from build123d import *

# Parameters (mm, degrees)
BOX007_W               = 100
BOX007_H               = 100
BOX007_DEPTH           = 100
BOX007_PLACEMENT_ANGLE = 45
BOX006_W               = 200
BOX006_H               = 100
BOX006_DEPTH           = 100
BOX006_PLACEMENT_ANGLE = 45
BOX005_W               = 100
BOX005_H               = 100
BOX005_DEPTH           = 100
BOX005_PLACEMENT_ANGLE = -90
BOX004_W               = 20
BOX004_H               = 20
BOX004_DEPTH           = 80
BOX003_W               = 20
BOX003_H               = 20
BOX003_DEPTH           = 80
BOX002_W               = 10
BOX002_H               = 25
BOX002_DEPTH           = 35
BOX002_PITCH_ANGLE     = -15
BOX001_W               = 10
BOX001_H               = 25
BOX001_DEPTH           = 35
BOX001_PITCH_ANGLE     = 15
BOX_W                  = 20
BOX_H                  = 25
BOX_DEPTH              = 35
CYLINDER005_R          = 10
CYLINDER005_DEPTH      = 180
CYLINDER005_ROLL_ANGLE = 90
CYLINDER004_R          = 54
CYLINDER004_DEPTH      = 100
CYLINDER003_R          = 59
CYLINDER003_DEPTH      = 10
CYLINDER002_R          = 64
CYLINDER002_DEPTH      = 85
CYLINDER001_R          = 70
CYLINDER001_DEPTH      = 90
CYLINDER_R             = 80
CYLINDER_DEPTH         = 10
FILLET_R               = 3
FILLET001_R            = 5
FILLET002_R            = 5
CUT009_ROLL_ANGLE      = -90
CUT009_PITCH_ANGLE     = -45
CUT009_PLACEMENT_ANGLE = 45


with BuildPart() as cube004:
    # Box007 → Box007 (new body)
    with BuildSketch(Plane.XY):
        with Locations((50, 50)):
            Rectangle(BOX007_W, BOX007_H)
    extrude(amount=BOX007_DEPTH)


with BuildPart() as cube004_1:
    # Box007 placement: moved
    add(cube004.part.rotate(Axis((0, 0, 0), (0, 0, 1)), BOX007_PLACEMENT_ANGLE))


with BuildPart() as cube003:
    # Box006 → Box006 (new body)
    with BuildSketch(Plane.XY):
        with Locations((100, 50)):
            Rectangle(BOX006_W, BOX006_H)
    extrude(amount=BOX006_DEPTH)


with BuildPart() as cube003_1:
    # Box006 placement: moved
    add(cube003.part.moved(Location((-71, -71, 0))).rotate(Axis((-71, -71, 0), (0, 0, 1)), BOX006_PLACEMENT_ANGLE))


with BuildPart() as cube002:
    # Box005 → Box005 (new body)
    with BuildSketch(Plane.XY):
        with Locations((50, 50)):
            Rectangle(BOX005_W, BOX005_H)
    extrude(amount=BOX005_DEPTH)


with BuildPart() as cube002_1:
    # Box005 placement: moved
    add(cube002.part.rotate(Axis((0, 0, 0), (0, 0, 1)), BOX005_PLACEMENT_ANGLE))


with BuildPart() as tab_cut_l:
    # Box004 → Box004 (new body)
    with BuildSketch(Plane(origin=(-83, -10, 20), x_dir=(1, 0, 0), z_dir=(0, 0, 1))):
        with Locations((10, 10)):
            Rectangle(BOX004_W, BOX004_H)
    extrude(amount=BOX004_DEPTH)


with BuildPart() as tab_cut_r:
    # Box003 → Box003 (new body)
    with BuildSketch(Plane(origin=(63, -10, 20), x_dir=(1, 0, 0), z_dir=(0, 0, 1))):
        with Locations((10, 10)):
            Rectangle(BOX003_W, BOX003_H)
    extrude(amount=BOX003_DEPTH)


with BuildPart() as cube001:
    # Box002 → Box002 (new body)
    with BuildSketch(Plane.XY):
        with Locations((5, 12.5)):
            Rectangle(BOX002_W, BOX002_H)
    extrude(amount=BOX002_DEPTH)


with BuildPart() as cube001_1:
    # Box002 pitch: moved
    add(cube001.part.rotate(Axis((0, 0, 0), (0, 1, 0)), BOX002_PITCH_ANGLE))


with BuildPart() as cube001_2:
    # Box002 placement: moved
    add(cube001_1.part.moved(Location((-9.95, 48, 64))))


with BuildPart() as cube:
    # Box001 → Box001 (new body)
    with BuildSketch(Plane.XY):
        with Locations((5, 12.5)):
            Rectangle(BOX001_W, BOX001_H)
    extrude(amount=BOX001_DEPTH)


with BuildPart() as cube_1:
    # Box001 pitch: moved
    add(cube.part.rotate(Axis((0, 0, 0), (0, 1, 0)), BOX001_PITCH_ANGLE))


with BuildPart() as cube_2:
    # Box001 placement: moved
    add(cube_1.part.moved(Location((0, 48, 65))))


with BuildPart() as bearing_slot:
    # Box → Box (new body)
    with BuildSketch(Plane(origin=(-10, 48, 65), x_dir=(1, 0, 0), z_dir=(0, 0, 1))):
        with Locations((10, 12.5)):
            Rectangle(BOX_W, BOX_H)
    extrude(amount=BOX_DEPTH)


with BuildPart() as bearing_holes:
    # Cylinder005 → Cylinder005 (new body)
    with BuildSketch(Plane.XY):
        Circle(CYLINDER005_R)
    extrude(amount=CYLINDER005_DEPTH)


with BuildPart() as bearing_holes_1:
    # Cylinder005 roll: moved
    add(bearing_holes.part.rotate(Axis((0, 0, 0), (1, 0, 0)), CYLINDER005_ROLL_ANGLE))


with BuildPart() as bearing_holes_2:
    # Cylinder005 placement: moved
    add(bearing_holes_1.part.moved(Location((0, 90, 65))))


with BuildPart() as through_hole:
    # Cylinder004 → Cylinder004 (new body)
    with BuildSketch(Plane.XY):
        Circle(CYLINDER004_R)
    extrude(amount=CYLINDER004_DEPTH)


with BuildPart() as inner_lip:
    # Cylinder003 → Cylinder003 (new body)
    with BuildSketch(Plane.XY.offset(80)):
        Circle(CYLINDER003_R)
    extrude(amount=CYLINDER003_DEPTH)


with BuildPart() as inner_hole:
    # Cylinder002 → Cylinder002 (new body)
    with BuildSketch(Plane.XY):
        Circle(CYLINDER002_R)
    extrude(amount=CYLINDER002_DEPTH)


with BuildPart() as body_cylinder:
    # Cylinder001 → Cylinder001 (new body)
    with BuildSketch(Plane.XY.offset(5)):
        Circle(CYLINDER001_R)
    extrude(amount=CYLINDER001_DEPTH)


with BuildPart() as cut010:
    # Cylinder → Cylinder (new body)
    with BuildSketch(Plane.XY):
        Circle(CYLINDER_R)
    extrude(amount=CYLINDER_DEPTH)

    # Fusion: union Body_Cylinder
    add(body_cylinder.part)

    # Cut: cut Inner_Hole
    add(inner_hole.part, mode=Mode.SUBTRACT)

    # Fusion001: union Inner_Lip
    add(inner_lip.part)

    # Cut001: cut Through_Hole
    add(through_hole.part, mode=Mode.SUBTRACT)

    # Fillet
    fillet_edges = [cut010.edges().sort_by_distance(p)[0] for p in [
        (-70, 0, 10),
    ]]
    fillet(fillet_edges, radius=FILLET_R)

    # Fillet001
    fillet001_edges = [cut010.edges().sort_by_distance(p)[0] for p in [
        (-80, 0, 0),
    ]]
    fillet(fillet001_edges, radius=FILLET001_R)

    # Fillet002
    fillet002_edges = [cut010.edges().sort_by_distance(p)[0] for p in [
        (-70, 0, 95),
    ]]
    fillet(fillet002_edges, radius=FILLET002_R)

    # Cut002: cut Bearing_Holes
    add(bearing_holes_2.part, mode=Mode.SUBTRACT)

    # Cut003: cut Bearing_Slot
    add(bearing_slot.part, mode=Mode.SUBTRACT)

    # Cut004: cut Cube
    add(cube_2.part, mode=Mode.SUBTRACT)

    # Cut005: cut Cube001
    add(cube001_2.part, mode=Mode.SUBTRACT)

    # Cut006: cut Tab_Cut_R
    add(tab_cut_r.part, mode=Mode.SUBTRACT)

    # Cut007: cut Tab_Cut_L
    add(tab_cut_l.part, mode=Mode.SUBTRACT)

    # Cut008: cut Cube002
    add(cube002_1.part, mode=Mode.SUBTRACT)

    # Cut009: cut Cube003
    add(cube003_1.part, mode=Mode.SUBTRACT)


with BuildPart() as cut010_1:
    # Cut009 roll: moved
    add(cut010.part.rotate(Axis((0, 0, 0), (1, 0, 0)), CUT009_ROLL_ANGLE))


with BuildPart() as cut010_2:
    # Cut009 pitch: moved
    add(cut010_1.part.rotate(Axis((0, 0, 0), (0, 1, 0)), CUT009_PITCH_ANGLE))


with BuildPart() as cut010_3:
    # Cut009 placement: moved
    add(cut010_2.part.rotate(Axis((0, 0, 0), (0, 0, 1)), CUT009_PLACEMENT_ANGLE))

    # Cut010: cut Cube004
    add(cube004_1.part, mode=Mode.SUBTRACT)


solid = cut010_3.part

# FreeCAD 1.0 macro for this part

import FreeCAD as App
import Part
import Sketcher
Q = App.Units.Quantity


def edges_at(feature, points):
    """Names of the edges that pass closest to the given points."""
    edges = feature.Shape.Edges
    near = lambda p: min(range(len(edges)), key=lambda i: edges[i].distToShape(Part.Vertex(*p))[0])
    return sorted({f"Edge{near(p) + 1}" for p in points})


def add_polygon(sketch, points):
    """Adds a closed chain of lines whose ends are joined by coincident constraints."""
    first, n = sketch.GeometryCount, len(points)
    for a, b in zip(points, points[1:] + points[:1]):
        sketch.addGeometry(Part.LineSegment(App.Vector(*a, 0), App.Vector(*b, 0)), False)
    for i in range(n):
        sketch.addConstraint(Sketcher.Constraint("Coincident", first + i, 2, first + (i + 1) % n, 1))

doc = App.newDocument("Part")
params = doc.addObject("Spreadsheet::Sheet", "Params")
for row, (alias, value) in enumerate([
    ("sketch1_width", "100 mm"),
    ("pad1_length", "100 mm"),
    ("sketch2_width", "200 mm"),
    ("sketch2_height", "100 mm"),
    ("pad2_length", "100 mm"),
    ("sketch3_width", "100 mm"),
    ("pad3_length", "100 mm"),
    ("sketch4_width", "20 mm"),
    ("pad4_length", "80 mm"),
    ("sketch5_width", "20 mm"),
    ("pad5_length", "80 mm"),
    ("sketch6_width", "10 mm"),
    ("sketch6_height", "25 mm"),
    ("pad6_length", "35 mm"),
    ("sketch7_width", "10 mm"),
    ("sketch7_height", "25 mm"),
    ("pad7_length", "35 mm"),
    ("sketch8_width", "20 mm"),
    ("sketch8_height", "25 mm"),
    ("pad8_length", "35 mm"),
    ("sketch9_diameter", "20 mm"),
    ("pad9_length", "180 mm"),
    ("sketch10_diameter", "108 mm"),
    ("pad10_length", "100 mm"),
    ("sketch11_diameter", "118 mm"),
    ("pad11_length", "10 mm"),
    ("sketch12_diameter", "128 mm"),
    ("pad12_length", "85 mm"),
    ("sketch13_diameter", "140 mm"),
    ("pad13_length", "90 mm"),
    ("sketch14_diameter", "160 mm"),
    ("pad14_length", "10 mm"),
    ("fillet_radius", "3 mm"),
    ("fillet2_radius", "5 mm"),
    ("fillet3_radius", "5 mm"),
], start=1):
    params.set(f"A{row}", alias)
    params.set(f"B{row}", "=" + value)
    params.setAlias(f"B{row}", alias)

body = doc.addObject("PartDesign::Body", "Body")

# Sketch on XY plane
sketch1 = body.newObject("Sketcher::SketchObject", "Sketch")
sketch1.AttachmentSupport = (doc.getObject("XY_Plane"), [""])
sketch1.MapMode = "FlatFace"
add_polygon(sketch1, [(0, 100), (0, 0), (100, 0), (100, 100)])  # lines 0-3
sketch1.addConstraint([
    Sketcher.Constraint("Vertical", 0),
    Sketcher.Constraint("Horizontal", 1),
    Sketcher.Constraint("Vertical", 2),
    Sketcher.Constraint("Horizontal", 3),
    Sketcher.Constraint("Coincident", 0, 2, -1, 1),
    Sketcher.Constraint("Equal", 3, 0),
    Sketcher.Constraint("DistanceX", 1, 1, 1, 2, Q("100 mm")),
])
sketch1.setExpression("Constraints[10]", "Params.sketch1_width")
pad1 = body.newObject("PartDesign::Pad", "Pad")
pad1.Profile = sketch1
pad1.setExpression("Length", "Params.pad1_length")
body2 = doc.addObject("PartDesign::Body", "Body001")
doc.recompute()

body.Placement = App.Placement(App.Vector(0, 0, 0), App.Rotation(App.Vector(0, 0, 1), 45))
boolean = body2.newObject("PartDesign::Boolean", "Boolean")
boolean.Type = "Fuse"
boolean.addObjects([body])
body3 = doc.addObject("PartDesign::Body", "Body002")

# Sketch on XY plane
sketch2 = body3.newObject("Sketcher::SketchObject", "Sketch001")
sketch2.AttachmentSupport = (doc.getObject("XY_Plane002"), [""])
sketch2.MapMode = "FlatFace"
add_polygon(sketch2, [(0, 100), (0, 0), (200, 0), (200, 100)])  # lines 0-3
sketch2.addConstraint([
    Sketcher.Constraint("Vertical", 0),
    Sketcher.Constraint("Horizontal", 1),
    Sketcher.Constraint("Vertical", 2),
    Sketcher.Constraint("Horizontal", 3),
    Sketcher.Constraint("Coincident", 0, 2, -1, 1),
    Sketcher.Constraint("DistanceX", 1, 1, 1, 2, Q("200 mm")),
    Sketcher.Constraint("DistanceY", 0, 2, 0, 1, Q("100 mm")),
])
sketch2.setExpression("Constraints[9]", "Params.sketch2_width")
sketch2.setExpression("Constraints[10]", "Params.sketch2_height")
pad2 = body3.newObject("PartDesign::Pad", "Pad001")
pad2.Profile = sketch2
pad2.setExpression("Length", "Params.pad2_length")
body4 = doc.addObject("PartDesign::Body", "Body003")
doc.recompute()

body3.Placement = App.Placement(App.Vector(-71, -71, 0), App.Rotation(App.Vector(0, 0, 1), 45))
boolean2 = body4.newObject("PartDesign::Boolean", "Boolean001")
boolean2.Type = "Fuse"
boolean2.addObjects([body3])
body5 = doc.addObject("PartDesign::Body", "Body004")

# Sketch on XY plane
sketch3 = body5.newObject("Sketcher::SketchObject", "Sketch002")
sketch3.AttachmentSupport = (doc.getObject("XY_Plane004"), [""])
sketch3.MapMode = "FlatFace"
add_polygon(sketch3, [(0, 100), (0, 0), (100, 0), (100, 100)])  # lines 0-3
sketch3.addConstraint([
    Sketcher.Constraint("Vertical", 0),
    Sketcher.Constraint("Horizontal", 1),
    Sketcher.Constraint("Vertical", 2),
    Sketcher.Constraint("Horizontal", 3),
    Sketcher.Constraint("Coincident", 0, 2, -1, 1),
    Sketcher.Constraint("Equal", 3, 0),
    Sketcher.Constraint("DistanceX", 1, 1, 1, 2, Q("100 mm")),
])
sketch3.setExpression("Constraints[10]", "Params.sketch3_width")
pad3 = body5.newObject("PartDesign::Pad", "Pad002")
pad3.Profile = sketch3
pad3.setExpression("Length", "Params.pad3_length")
body6 = doc.addObject("PartDesign::Body", "Body005")
doc.recompute()

body5.Placement = App.Placement(App.Vector(0, 0, 0), App.Rotation(App.Vector(0, 0, 1), 270))
boolean3 = body6.newObject("PartDesign::Boolean", "Boolean002")
boolean3.Type = "Fuse"
boolean3.addObjects([body5])
body7 = doc.addObject("PartDesign::Body", "Body006")

# Sketch on XY plane
sketch4 = body7.newObject("Sketcher::SketchObject", "Sketch003")
sketch4.AttachmentSupport = (doc.getObject("XY_Plane006"), [""])
sketch4.MapMode = "FlatFace"
sketch4.AttachmentOffset = App.Placement(App.Vector(0, 0, 20), App.Rotation())
add_polygon(sketch4, [(-83, 10), (-83, -10), (-63, -10), (-63, 10)])  # lines 0-3
sketch4.addConstraint([
    Sketcher.Constraint("Vertical", 0),
    Sketcher.Constraint("Horizontal", 1),
    Sketcher.Constraint("Vertical", 2),
    Sketcher.Constraint("Horizontal", 3),
    Sketcher.Constraint("Equal", 3, 0),
    Sketcher.Constraint("DistanceX", 1, 1, 1, 2, Q("20 mm")),
    Sketcher.Constraint("DistanceX", 0, 2, -1, 1, Q("83 mm")),
    Sketcher.Constraint("DistanceY", 0, 2, -1, 1, Q("10 mm")),
])
sketch4.setExpression("Constraints[9]", "Params.sketch4_width")
pad4 = body7.newObject("PartDesign::Pad", "Pad003")
pad4.Profile = sketch4
pad4.setExpression("Length", "Params.pad4_length")
body8 = doc.addObject("PartDesign::Body", "Body007")

# Sketch on XY plane
sketch5 = body8.newObject("Sketcher::SketchObject", "Sketch004")
sketch5.AttachmentSupport = (doc.getObject("XY_Plane007"), [""])
sketch5.MapMode = "FlatFace"
sketch5.AttachmentOffset = App.Placement(App.Vector(0, 0, 20), App.Rotation())
add_polygon(sketch5, [(63, 10), (63, -10), (83, -10), (83, 10)])  # lines 0-3
sketch5.addConstraint([
    Sketcher.Constraint("Vertical", 0),
    Sketcher.Constraint("Horizontal", 1),
    Sketcher.Constraint("Vertical", 2),
    Sketcher.Constraint("Horizontal", 3),
    Sketcher.Constraint("Equal", 3, 0),
    Sketcher.Constraint("DistanceX", 1, 1, 1, 2, Q("20 mm")),
    Sketcher.Constraint("DistanceX", -1, 1, 0, 2, Q("63 mm")),
    Sketcher.Constraint("DistanceY", 0, 2, -1, 1, Q("10 mm")),
])
sketch5.setExpression("Constraints[9]", "Params.sketch5_width")
pad5 = body8.newObject("PartDesign::Pad", "Pad004")
pad5.Profile = sketch5
pad5.setExpression("Length", "Params.pad5_length")
body9 = doc.addObject("PartDesign::Body", "Body008")

# Sketch on XY plane
sketch6 = body9.newObject("Sketcher::SketchObject", "Sketch005")
sketch6.AttachmentSupport = (doc.getObject("XY_Plane008"), [""])
sketch6.MapMode = "FlatFace"
add_polygon(sketch6, [(0, 25), (0, 0), (10, 0), (10, 25)])  # lines 0-3
sketch6.addConstraint([
    Sketcher.Constraint("Vertical", 0),
    Sketcher.Constraint("Horizontal", 1),
    Sketcher.Constraint("Vertical", 2),
    Sketcher.Constraint("Horizontal", 3),
    Sketcher.Constraint("Coincident", 0, 2, -1, 1),
    Sketcher.Constraint("DistanceX", 1, 1, 1, 2, Q("10 mm")),
    Sketcher.Constraint("DistanceY", 0, 2, 0, 1, Q("25 mm")),
])
sketch6.setExpression("Constraints[9]", "Params.sketch6_width")
sketch6.setExpression("Constraints[10]", "Params.sketch6_height")
pad6 = body9.newObject("PartDesign::Pad", "Pad005")
pad6.Profile = sketch6
pad6.setExpression("Length", "Params.pad6_length")
body10 = doc.addObject("PartDesign::Body", "Body009")
doc.recompute()

body9.Placement = App.Placement(App.Vector(0, 0, 0), App.Rotation(App.Vector(0, 1, 0), 345))
boolean4 = body10.newObject("PartDesign::Boolean", "Boolean003")
boolean4.Type = "Fuse"
boolean4.addObjects([body9])
body11 = doc.addObject("PartDesign::Body", "Body010")
doc.recompute()

body10.Placement = App.Placement(App.Vector(-9.95, 48, 64), App.Rotation(App.Vector(0, 0, 1), 0))
boolean5 = body11.newObject("PartDesign::Boolean", "Boolean004")
boolean5.Type = "Fuse"
boolean5.addObjects([body10])
body12 = doc.addObject("PartDesign::Body", "Body011")

# Sketch on XY plane
sketch7 = body12.newObject("Sketcher::SketchObject", "Sketch006")
sketch7.AttachmentSupport = (doc.getObject("XY_Plane011"), [""])
sketch7.MapMode = "FlatFace"
add_polygon(sketch7, [(0, 25), (0, 0), (10, 0), (10, 25)])  # lines 0-3
sketch7.addConstraint([
    Sketcher.Constraint("Vertical", 0),
    Sketcher.Constraint("Horizontal", 1),
    Sketcher.Constraint("Vertical", 2),
    Sketcher.Constraint("Horizontal", 3),
    Sketcher.Constraint("Coincident", 0, 2, -1, 1),
    Sketcher.Constraint("DistanceX", 1, 1, 1, 2, Q("10 mm")),
    Sketcher.Constraint("DistanceY", 0, 2, 0, 1, Q("25 mm")),
])
sketch7.setExpression("Constraints[9]", "Params.sketch7_width")
sketch7.setExpression("Constraints[10]", "Params.sketch7_height")
pad7 = body12.newObject("PartDesign::Pad", "Pad006")
pad7.Profile = sketch7
pad7.setExpression("Length", "Params.pad7_length")
body13 = doc.addObject("PartDesign::Body", "Body012")
doc.recompute()

body12.Placement = App.Placement(App.Vector(0, 0, 0), App.Rotation(App.Vector(0, 1, 0), 15))
boolean6 = body13.newObject("PartDesign::Boolean", "Boolean005")
boolean6.Type = "Fuse"
boolean6.addObjects([body12])
body14 = doc.addObject("PartDesign::Body", "Body013")
doc.recompute()

body13.Placement = App.Placement(App.Vector(0, 48, 65), App.Rotation(App.Vector(0, 0, 1), 0))
boolean7 = body14.newObject("PartDesign::Boolean", "Boolean006")
boolean7.Type = "Fuse"
boolean7.addObjects([body13])
body15 = doc.addObject("PartDesign::Body", "Body014")

# Sketch on XY plane
sketch8 = body15.newObject("Sketcher::SketchObject", "Sketch007")
sketch8.AttachmentSupport = (doc.getObject("XY_Plane014"), [""])
sketch8.MapMode = "FlatFace"
sketch8.AttachmentOffset = App.Placement(App.Vector(0, 0, 65), App.Rotation())
add_polygon(sketch8, [(-10, 73), (-10, 48), (10, 48), (10, 73)])  # lines 0-3
sketch8.addConstraint([
    Sketcher.Constraint("Vertical", 0),
    Sketcher.Constraint("Horizontal", 1),
    Sketcher.Constraint("Vertical", 2),
    Sketcher.Constraint("Horizontal", 3),
    Sketcher.Constraint("DistanceX", 1, 1, 1, 2, Q("20 mm")),
    Sketcher.Constraint("DistanceY", 0, 2, 0, 1, Q("25 mm")),
    Sketcher.Constraint("DistanceX", 0, 2, -1, 1, Q("10 mm")),
    Sketcher.Constraint("DistanceY", -1, 1, 0, 2, Q("48 mm")),
])
sketch8.setExpression("Constraints[8]", "Params.sketch8_width")
sketch8.setExpression("Constraints[9]", "Params.sketch8_height")
pad8 = body15.newObject("PartDesign::Pad", "Pad007")
pad8.Profile = sketch8
pad8.setExpression("Length", "Params.pad8_length")
body16 = doc.addObject("PartDesign::Body", "Body015")

# Sketch on XY plane
sketch9 = body16.newObject("Sketcher::SketchObject", "Sketch008")
sketch9.AttachmentSupport = (doc.getObject("XY_Plane015"), [""])
sketch9.MapMode = "FlatFace"
sketch9.addGeometry(Part.Circle(App.Vector(0, 0, 0), App.Vector(0, 0, 1), 10), False)
sketch9.addConstraint([
    Sketcher.Constraint("Coincident", 0, 3, -1, 1),
    Sketcher.Constraint("Diameter", 0, Q("20 mm")),
])
sketch9.setExpression("Constraints[1]", "Params.sketch9_diameter")
pad9 = body16.newObject("PartDesign::Pad", "Pad008")
pad9.Profile = sketch9
pad9.setExpression("Length", "Params.pad9_length")
body17 = doc.addObject("PartDesign::Body", "Body016")
doc.recompute()

body16.Placement = App.Placement(App.Vector(0, 0, 0), App.Rotation(App.Vector(1, 0, 0), 90))
boolean8 = body17.newObject("PartDesign::Boolean", "Boolean007")
boolean8.Type = "Fuse"
boolean8.addObjects([body16])
body18 = doc.addObject("PartDesign::Body", "Body017")
doc.recompute()

body17.Placement = App.Placement(App.Vector(0, 90, 65), App.Rotation(App.Vector(0, 0, 1), 0))
boolean9 = body18.newObject("PartDesign::Boolean", "Boolean008")
boolean9.Type = "Fuse"
boolean9.addObjects([body17])
body19 = doc.addObject("PartDesign::Body", "Body018")

# Sketch on XY plane
sketch10 = body19.newObject("Sketcher::SketchObject", "Sketch009")
sketch10.AttachmentSupport = (doc.getObject("XY_Plane018"), [""])
sketch10.MapMode = "FlatFace"
sketch10.addGeometry(Part.Circle(App.Vector(0, 0, 0), App.Vector(0, 0, 1), 54), False)
sketch10.addConstraint([
    Sketcher.Constraint("Coincident", 0, 3, -1, 1),
    Sketcher.Constraint("Diameter", 0, Q("108 mm")),
])
sketch10.setExpression("Constraints[1]", "Params.sketch10_diameter")
pad10 = body19.newObject("PartDesign::Pad", "Pad009")
pad10.Profile = sketch10
pad10.setExpression("Length", "Params.pad10_length")
body20 = doc.addObject("PartDesign::Body", "Body019")

# Sketch on XY plane
sketch11 = body20.newObject("Sketcher::SketchObject", "Sketch010")
sketch11.AttachmentSupport = (doc.getObject("XY_Plane019"), [""])
sketch11.MapMode = "FlatFace"
sketch11.AttachmentOffset = App.Placement(App.Vector(0, 0, 80), App.Rotation())
sketch11.addGeometry(Part.Circle(App.Vector(0, 0, 0), App.Vector(0, 0, 1), 59), False)
sketch11.addConstraint([
    Sketcher.Constraint("Coincident", 0, 3, -1, 1),
    Sketcher.Constraint("Diameter", 0, Q("118 mm")),
])
sketch11.setExpression("Constraints[1]", "Params.sketch11_diameter")
pad11 = body20.newObject("PartDesign::Pad", "Pad010")
pad11.Profile = sketch11
pad11.setExpression("Length", "Params.pad11_length")
body21 = doc.addObject("PartDesign::Body", "Body020")

# Sketch on XY plane
sketch12 = body21.newObject("Sketcher::SketchObject", "Sketch011")
sketch12.AttachmentSupport = (doc.getObject("XY_Plane020"), [""])
sketch12.MapMode = "FlatFace"
sketch12.addGeometry(Part.Circle(App.Vector(0, 0, 0), App.Vector(0, 0, 1), 64), False)
sketch12.addConstraint([
    Sketcher.Constraint("Coincident", 0, 3, -1, 1),
    Sketcher.Constraint("Diameter", 0, Q("128 mm")),
])
sketch12.setExpression("Constraints[1]", "Params.sketch12_diameter")
pad12 = body21.newObject("PartDesign::Pad", "Pad011")
pad12.Profile = sketch12
pad12.setExpression("Length", "Params.pad12_length")
body22 = doc.addObject("PartDesign::Body", "Body021")

# Sketch on XY plane
sketch13 = body22.newObject("Sketcher::SketchObject", "Sketch012")
sketch13.AttachmentSupport = (doc.getObject("XY_Plane021"), [""])
sketch13.MapMode = "FlatFace"
sketch13.AttachmentOffset = App.Placement(App.Vector(0, 0, 5), App.Rotation())
sketch13.addGeometry(Part.Circle(App.Vector(0, 0, 0), App.Vector(0, 0, 1), 70), False)
sketch13.addConstraint([
    Sketcher.Constraint("Coincident", 0, 3, -1, 1),
    Sketcher.Constraint("Diameter", 0, Q("140 mm")),
])
sketch13.setExpression("Constraints[1]", "Params.sketch13_diameter")
pad13 = body22.newObject("PartDesign::Pad", "Pad012")
pad13.Profile = sketch13
pad13.setExpression("Length", "Params.pad13_length")
body23 = doc.addObject("PartDesign::Body", "Body022")
body23.AllowCompound = True

# Sketch on XY plane
sketch14 = body23.newObject("Sketcher::SketchObject", "Sketch013")
sketch14.AttachmentSupport = (doc.getObject("XY_Plane022"), [""])
sketch14.MapMode = "FlatFace"
sketch14.addGeometry(Part.Circle(App.Vector(0, 0, 0), App.Vector(0, 0, 1), 80), False)
sketch14.addConstraint([
    Sketcher.Constraint("Coincident", 0, 3, -1, 1),
    Sketcher.Constraint("Diameter", 0, Q("160 mm")),
])
sketch14.setExpression("Constraints[1]", "Params.sketch14_diameter")
pad14 = body23.newObject("PartDesign::Pad", "Pad013")
pad14.Profile = sketch14
pad14.setExpression("Length", "Params.pad14_length")
doc.recompute()

boolean10 = body23.newObject("PartDesign::Boolean", "Boolean009")
boolean10.Type = "Fuse"
boolean10.addObjects([body22])
doc.recompute()

boolean11 = body23.newObject("PartDesign::Boolean", "Boolean010")
boolean11.Type = "Cut"
boolean11.addObjects([body21])
doc.recompute()

boolean12 = body23.newObject("PartDesign::Boolean", "Boolean011")
boolean12.Type = "Fuse"
boolean12.addObjects([body20])
doc.recompute()

boolean13 = body23.newObject("PartDesign::Boolean", "Boolean012")
boolean13.Type = "Cut"
boolean13.addObjects([body19])
doc.recompute()

fillet = body23.newObject("PartDesign::Fillet", "Fillet")
fillet.Base = (boolean13, edges_at(boolean13, [(-70, 0, 10)]))
fillet.setExpression("Radius", "Params.fillet_radius")
doc.recompute()

fillet2 = body23.newObject("PartDesign::Fillet", "Fillet001")
fillet2.Base = (fillet, edges_at(fillet, [(-80, 0, 0)]))
fillet2.setExpression("Radius", "Params.fillet2_radius")
doc.recompute()

fillet3 = body23.newObject("PartDesign::Fillet", "Fillet002")
fillet3.Base = (fillet2, edges_at(fillet2, [(-70, 0, 95)]))
fillet3.setExpression("Radius", "Params.fillet3_radius")
doc.recompute()

boolean14 = body23.newObject("PartDesign::Boolean", "Boolean013")
boolean14.Type = "Cut"
boolean14.addObjects([body18])
doc.recompute()

boolean15 = body23.newObject("PartDesign::Boolean", "Boolean014")
boolean15.Type = "Cut"
boolean15.addObjects([body15])
doc.recompute()

boolean16 = body23.newObject("PartDesign::Boolean", "Boolean015")
boolean16.Type = "Cut"
boolean16.addObjects([body14])
doc.recompute()

boolean17 = body23.newObject("PartDesign::Boolean", "Boolean016")
boolean17.Type = "Cut"
boolean17.addObjects([body11])
doc.recompute()

boolean18 = body23.newObject("PartDesign::Boolean", "Boolean017")
boolean18.Type = "Cut"
boolean18.addObjects([body8])
doc.recompute()

boolean19 = body23.newObject("PartDesign::Boolean", "Boolean018")
boolean19.Type = "Cut"
boolean19.addObjects([body7])
doc.recompute()

boolean20 = body23.newObject("PartDesign::Boolean", "Boolean019")
boolean20.Type = "Cut"
boolean20.addObjects([body6])
doc.recompute()

boolean21 = body23.newObject("PartDesign::Boolean", "Boolean020")
boolean21.Type = "Cut"
boolean21.addObjects([body4])
body24 = doc.addObject("PartDesign::Body", "Body023")
body24.AllowCompound = True
doc.recompute()

body23.Placement = App.Placement(App.Vector(0, 0, 0), App.Rotation(App.Vector(1, 0, 0), 270))
boolean22 = body24.newObject("PartDesign::Boolean", "Boolean021")
boolean22.Type = "Fuse"
boolean22.addObjects([body23])
body25 = doc.addObject("PartDesign::Body", "Body024")
body25.AllowCompound = True
doc.recompute()

body24.Placement = App.Placement(App.Vector(0, 0, 0), App.Rotation(App.Vector(0, 1, 0), 315))
boolean23 = body25.newObject("PartDesign::Boolean", "Boolean022")
boolean23.Type = "Fuse"
boolean23.addObjects([body24])
body26 = doc.addObject("PartDesign::Body", "Body025")
body26.AllowCompound = True
doc.recompute()

body25.Placement = App.Placement(App.Vector(0, 0, 0), App.Rotation(App.Vector(0, 0, 1), 45))
boolean24 = body26.newObject("PartDesign::Boolean", "Boolean023")
boolean24.Type = "Fuse"
boolean24.addObjects([body25])
doc.recompute()

boolean25 = body26.newObject("PartDesign::Boolean", "Boolean024")
boolean25.Type = "Cut"
boolean25.addObjects([body2])

doc.recompute()
